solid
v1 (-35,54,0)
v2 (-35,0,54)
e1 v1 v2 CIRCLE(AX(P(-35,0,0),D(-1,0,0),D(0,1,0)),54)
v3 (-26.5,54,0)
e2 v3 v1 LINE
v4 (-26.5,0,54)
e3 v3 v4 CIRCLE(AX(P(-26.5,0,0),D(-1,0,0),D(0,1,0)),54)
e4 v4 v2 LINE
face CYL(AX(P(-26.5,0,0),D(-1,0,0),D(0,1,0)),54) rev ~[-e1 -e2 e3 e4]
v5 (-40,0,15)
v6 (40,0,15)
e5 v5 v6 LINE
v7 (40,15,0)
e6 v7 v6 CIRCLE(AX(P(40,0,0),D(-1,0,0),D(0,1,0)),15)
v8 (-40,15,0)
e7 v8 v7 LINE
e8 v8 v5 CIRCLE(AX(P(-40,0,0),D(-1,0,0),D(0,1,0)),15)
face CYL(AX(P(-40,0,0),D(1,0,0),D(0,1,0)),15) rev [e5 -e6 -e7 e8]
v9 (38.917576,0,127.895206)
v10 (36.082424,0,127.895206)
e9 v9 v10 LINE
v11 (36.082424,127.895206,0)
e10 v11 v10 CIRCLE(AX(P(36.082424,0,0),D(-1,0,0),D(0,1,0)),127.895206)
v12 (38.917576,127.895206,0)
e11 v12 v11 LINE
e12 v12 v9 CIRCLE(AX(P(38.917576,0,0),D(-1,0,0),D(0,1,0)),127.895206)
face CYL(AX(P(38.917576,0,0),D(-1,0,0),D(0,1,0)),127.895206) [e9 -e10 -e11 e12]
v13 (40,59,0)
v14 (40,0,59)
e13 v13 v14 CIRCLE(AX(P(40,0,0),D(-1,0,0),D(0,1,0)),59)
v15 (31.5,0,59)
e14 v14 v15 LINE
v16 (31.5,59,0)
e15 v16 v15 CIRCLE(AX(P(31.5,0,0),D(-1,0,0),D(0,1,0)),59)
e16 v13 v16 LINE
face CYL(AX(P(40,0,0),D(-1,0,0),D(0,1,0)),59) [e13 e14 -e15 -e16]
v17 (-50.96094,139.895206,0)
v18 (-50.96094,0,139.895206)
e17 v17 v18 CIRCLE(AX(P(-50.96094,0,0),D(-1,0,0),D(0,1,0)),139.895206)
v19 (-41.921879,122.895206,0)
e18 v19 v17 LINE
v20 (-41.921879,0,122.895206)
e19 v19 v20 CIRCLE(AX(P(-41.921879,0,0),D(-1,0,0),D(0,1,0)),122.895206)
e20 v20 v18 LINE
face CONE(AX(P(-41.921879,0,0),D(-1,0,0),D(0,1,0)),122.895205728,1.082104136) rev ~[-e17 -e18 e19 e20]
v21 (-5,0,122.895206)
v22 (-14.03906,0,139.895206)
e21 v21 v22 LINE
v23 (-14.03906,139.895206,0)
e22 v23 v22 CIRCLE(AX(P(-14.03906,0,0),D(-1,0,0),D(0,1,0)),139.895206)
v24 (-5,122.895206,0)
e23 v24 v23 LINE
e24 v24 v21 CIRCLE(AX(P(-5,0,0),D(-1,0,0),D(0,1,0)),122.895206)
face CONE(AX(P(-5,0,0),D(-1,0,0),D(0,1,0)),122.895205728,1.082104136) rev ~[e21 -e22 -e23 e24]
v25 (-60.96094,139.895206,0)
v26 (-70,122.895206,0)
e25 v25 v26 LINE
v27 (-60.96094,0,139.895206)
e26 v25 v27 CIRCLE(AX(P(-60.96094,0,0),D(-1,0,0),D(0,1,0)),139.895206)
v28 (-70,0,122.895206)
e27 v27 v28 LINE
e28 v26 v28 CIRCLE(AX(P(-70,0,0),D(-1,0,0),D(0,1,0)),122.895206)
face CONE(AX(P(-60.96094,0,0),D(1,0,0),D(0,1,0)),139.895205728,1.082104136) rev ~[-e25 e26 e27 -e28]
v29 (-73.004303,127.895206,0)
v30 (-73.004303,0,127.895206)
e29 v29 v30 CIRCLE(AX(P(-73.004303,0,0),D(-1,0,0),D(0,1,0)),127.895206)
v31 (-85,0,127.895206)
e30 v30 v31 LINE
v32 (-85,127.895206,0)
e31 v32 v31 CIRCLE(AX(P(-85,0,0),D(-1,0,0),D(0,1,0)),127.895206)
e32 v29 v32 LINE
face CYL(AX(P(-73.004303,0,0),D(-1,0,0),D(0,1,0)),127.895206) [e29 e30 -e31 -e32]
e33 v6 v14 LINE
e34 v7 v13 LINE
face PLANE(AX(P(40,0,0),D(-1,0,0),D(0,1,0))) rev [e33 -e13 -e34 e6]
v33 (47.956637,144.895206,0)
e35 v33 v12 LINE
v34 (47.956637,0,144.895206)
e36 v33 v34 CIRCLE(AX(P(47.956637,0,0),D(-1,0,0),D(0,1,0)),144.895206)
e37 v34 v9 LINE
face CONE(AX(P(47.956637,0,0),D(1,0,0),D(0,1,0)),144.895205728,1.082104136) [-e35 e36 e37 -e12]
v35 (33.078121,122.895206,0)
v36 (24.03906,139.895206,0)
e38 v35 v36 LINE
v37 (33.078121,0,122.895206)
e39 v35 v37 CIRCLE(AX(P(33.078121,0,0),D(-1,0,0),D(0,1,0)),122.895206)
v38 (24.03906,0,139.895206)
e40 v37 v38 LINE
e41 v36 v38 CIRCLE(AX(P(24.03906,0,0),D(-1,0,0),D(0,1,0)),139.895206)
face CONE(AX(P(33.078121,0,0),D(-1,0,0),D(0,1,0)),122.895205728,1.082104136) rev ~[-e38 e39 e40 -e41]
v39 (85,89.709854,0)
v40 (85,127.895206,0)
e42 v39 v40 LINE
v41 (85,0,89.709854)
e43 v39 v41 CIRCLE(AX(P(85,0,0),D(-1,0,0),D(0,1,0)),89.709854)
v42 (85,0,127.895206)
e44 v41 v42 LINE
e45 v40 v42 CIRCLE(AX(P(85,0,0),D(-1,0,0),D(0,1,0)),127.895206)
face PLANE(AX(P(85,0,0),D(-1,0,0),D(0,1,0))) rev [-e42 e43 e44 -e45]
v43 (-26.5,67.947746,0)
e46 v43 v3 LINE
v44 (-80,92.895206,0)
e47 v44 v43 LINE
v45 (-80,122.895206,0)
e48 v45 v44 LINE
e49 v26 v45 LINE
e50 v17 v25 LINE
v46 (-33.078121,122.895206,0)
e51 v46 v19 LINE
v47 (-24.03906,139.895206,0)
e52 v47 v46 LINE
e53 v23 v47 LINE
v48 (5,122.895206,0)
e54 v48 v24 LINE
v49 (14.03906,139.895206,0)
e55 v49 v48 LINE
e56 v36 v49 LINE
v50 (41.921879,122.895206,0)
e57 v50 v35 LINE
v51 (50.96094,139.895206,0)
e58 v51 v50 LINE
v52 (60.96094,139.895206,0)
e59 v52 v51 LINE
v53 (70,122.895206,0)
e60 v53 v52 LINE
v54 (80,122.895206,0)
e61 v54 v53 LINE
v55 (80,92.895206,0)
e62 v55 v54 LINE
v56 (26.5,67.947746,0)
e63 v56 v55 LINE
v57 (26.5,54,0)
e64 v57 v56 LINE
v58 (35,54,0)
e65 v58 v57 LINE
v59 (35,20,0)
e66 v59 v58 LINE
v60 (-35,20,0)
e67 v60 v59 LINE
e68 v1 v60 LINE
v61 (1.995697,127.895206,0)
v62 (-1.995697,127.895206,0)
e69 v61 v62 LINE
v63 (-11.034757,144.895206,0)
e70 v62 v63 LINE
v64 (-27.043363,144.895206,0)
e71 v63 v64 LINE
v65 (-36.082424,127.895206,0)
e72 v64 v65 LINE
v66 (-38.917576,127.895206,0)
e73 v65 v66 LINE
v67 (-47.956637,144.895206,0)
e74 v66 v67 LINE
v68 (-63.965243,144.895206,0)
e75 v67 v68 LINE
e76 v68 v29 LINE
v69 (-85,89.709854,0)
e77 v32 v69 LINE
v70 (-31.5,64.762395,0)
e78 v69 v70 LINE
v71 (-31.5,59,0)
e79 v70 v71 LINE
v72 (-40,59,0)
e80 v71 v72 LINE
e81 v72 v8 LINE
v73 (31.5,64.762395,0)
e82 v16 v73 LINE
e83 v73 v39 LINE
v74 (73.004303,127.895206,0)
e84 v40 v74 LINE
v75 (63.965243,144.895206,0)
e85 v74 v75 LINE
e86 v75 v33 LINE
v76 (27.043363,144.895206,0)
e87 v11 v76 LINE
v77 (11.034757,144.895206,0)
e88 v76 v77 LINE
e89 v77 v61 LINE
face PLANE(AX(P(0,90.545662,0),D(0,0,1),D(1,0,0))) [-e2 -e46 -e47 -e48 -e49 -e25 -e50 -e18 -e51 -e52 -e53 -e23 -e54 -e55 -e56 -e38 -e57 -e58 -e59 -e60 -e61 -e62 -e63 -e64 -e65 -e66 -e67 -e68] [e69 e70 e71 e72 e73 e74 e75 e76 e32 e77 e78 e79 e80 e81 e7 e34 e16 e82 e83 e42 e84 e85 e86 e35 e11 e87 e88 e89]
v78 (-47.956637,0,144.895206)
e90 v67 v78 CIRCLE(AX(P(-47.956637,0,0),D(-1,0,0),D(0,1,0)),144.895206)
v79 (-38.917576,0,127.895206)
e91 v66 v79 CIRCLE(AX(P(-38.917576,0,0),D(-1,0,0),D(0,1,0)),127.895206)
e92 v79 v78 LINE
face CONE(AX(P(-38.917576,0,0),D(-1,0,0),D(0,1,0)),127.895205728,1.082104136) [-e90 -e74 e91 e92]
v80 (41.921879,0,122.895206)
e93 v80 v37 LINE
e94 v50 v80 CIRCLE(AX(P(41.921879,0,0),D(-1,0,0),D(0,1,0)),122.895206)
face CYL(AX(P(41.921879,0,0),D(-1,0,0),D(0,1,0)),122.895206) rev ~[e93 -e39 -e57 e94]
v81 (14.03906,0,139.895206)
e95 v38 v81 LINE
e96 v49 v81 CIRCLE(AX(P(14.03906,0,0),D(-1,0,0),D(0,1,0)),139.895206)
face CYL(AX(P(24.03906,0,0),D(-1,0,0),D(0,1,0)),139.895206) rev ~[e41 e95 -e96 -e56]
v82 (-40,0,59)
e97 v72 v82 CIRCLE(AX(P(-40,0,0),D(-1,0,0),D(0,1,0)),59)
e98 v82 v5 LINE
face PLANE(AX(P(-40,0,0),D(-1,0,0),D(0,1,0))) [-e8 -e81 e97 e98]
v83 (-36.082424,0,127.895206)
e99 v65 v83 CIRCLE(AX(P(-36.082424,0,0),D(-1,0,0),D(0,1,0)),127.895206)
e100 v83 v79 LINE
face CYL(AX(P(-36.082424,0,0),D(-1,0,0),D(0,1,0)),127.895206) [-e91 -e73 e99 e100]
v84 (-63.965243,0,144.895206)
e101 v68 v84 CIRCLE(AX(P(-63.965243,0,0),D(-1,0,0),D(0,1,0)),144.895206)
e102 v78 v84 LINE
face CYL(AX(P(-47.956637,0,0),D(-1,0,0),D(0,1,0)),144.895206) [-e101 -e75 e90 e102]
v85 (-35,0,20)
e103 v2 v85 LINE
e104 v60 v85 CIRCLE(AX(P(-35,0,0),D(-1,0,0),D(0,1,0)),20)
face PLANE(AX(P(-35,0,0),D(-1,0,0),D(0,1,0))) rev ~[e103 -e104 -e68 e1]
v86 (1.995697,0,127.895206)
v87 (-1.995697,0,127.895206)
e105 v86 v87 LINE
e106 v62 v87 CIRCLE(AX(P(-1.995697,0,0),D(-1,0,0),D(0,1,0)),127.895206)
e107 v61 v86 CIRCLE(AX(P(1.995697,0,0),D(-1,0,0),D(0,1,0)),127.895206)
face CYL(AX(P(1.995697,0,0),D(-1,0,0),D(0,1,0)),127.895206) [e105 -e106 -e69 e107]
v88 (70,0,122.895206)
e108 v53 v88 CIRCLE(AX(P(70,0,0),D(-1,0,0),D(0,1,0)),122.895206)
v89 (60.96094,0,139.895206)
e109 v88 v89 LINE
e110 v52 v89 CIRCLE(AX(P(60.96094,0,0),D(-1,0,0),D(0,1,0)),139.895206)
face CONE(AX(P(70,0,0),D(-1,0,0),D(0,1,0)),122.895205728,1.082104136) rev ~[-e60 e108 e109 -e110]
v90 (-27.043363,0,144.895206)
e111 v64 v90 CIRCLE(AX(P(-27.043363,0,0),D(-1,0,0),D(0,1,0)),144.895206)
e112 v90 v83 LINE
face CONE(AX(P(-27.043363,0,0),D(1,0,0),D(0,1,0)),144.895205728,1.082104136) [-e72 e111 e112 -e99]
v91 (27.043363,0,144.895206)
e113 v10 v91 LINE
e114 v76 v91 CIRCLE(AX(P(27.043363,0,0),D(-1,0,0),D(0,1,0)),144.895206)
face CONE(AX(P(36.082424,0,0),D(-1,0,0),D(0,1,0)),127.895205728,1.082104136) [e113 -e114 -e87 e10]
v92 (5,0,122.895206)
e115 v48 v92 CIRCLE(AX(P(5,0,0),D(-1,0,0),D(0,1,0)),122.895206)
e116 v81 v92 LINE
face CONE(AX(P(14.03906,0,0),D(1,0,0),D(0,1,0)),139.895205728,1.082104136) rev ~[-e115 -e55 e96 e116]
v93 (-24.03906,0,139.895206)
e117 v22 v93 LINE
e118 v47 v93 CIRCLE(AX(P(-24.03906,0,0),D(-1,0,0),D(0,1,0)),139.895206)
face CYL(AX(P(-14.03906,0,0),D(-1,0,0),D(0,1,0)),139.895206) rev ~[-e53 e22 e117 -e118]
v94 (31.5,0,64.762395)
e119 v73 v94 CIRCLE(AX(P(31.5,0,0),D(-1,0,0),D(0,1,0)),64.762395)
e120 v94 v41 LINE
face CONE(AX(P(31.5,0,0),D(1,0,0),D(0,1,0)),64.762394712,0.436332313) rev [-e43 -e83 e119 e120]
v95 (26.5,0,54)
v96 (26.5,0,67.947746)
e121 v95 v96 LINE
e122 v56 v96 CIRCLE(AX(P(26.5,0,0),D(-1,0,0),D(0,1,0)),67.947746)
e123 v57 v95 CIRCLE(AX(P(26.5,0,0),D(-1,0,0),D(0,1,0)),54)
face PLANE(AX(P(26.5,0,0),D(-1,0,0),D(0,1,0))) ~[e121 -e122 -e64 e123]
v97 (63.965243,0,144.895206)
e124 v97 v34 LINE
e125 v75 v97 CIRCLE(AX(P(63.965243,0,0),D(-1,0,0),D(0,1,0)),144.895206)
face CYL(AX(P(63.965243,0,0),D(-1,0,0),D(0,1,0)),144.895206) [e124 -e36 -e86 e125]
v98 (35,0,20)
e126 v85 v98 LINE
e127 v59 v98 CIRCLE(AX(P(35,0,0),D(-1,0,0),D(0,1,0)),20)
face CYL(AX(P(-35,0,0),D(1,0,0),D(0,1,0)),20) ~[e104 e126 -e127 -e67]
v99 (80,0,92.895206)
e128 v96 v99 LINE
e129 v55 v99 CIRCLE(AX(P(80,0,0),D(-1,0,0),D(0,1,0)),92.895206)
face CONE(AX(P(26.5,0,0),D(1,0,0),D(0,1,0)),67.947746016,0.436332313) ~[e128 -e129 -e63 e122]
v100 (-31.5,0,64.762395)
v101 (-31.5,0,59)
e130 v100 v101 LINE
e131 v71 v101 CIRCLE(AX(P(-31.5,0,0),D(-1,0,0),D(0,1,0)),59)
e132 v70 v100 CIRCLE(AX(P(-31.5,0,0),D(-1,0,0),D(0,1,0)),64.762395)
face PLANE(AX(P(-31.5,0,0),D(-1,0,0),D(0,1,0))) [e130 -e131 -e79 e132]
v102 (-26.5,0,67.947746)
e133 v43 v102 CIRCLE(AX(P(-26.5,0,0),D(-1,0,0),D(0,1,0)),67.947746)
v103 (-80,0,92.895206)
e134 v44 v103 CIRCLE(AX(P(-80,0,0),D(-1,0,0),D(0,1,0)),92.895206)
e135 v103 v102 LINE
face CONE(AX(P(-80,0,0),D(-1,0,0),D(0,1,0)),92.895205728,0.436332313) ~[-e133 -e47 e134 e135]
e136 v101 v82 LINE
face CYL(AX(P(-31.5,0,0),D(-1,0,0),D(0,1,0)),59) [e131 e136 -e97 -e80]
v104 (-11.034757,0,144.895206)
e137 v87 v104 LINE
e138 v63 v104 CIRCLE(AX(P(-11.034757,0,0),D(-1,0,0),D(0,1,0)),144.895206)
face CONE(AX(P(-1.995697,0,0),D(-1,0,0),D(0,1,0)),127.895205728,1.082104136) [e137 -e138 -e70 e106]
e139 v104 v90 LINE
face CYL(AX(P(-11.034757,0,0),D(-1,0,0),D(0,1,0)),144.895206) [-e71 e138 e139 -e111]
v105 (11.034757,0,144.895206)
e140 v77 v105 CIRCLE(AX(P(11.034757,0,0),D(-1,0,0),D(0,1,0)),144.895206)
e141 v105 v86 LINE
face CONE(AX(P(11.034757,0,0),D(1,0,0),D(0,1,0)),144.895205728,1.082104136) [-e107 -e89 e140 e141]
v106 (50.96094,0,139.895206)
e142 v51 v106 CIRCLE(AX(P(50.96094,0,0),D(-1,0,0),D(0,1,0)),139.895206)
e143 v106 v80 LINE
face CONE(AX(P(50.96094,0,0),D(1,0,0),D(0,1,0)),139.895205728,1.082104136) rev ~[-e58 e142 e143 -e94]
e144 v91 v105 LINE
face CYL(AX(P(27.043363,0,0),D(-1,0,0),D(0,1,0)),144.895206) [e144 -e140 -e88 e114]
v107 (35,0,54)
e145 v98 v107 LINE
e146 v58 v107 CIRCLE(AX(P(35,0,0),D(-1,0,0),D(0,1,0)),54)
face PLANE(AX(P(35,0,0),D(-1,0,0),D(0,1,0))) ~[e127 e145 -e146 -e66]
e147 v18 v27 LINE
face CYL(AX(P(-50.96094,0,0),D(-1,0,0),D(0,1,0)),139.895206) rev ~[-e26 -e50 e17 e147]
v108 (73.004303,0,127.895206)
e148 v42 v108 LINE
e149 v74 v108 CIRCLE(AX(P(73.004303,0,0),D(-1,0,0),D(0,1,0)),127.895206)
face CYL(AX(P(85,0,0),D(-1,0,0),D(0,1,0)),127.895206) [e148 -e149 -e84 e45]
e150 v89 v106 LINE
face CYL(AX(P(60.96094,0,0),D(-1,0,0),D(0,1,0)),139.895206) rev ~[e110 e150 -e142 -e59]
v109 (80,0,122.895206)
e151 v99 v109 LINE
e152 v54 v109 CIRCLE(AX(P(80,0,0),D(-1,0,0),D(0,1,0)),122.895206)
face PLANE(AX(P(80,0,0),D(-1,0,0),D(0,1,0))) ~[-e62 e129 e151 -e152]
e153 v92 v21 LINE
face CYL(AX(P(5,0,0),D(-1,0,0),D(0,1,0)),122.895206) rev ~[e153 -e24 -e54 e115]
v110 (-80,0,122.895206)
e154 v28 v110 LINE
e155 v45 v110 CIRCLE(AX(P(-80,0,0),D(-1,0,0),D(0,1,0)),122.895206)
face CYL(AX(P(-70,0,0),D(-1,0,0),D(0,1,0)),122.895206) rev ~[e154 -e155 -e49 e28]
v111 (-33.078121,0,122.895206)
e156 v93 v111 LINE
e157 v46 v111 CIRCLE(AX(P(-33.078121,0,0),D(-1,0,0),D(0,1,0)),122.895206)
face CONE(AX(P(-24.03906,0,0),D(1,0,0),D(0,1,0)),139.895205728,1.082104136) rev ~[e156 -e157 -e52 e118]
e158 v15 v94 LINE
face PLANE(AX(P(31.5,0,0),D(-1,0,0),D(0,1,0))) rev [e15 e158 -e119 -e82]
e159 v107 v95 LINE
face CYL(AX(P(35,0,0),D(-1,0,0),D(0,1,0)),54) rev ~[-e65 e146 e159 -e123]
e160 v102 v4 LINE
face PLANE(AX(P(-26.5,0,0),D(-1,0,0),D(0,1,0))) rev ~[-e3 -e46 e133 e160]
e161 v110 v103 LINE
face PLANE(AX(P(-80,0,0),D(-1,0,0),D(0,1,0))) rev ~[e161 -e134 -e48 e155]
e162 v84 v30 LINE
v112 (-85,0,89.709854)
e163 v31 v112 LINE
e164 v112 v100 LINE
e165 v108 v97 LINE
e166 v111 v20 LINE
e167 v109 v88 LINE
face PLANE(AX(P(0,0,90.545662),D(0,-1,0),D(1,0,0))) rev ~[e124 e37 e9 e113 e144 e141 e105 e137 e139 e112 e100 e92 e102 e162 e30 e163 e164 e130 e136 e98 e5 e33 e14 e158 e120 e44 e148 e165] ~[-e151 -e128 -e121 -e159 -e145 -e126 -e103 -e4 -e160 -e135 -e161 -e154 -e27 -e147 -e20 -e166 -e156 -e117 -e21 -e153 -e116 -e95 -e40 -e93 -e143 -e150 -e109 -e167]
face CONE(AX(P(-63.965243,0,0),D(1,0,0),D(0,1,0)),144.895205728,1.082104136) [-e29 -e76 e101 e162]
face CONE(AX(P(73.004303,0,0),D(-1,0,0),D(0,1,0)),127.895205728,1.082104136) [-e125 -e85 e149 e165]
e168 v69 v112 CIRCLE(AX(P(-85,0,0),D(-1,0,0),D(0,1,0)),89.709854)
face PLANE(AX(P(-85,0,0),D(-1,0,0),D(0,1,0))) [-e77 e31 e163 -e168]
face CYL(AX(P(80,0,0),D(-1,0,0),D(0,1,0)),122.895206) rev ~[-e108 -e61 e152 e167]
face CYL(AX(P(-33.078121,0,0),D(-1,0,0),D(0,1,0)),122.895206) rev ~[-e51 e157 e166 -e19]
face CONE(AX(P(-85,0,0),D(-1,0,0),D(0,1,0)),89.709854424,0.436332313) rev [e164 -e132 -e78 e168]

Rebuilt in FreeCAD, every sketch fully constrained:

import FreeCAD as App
import Part
import Sketcher

V = App.Vector
Q = App.Units.Quantity


def add_polygon(sketch, points):
    """Adds a closed chain of lines whose ends are joined by coincident constraints."""
    first, n = sketch.GeometryCount, len(points)
    for a, b in zip(points, points[1:] + points[:1]):
        sketch.addGeometry(Part.LineSegment(App.Vector(*a, 0), App.Vector(*b, 0)), False)
    for i in range(n):
        sketch.addConstraint(Sketcher.Constraint("Coincident", first + i, 2, first + (i + 1) % n, 1))

doc = App.newDocument("Part")
body = doc.addObject("PartDesign::Body", "Body")

# Sketch on XY plane
sketch1 = body.newObject("Sketcher::SketchObject", "Sketch")
sketch1.AttachmentSupport = (doc.getObject("XY_Plane"), [""])
sketch1.MapMode = "FlatFace"
add_polygon(sketch1, [(-2, 127.9), (-11, 144.9), (-27, 144.9), (-36.1, 127.9), (-38.9, 127.9), (-48, 144.9), (-64, 144.9), (-73, 127.9), (-85, 127.9), (-85, 89.7), (-31.5, 64.8), (-31.5, 59), (-40, 59), (-40, 15), (40, 15), (40, 59), (31.5, 59), (31.5, 64.8), (85, 89.7), (85, 127.9), (73, 127.9), (64, 144.9), (48, 144.9), (38.9, 127.9), (36.1, 127.9), (27, 144.9), (11, 144.9), (2, 127.9)])  # lines 0-27
add_polygon(sketch1, [(-14, 139.9), (-5, 122.9), (5, 122.9), (14, 139.9), (24, 139.9), (33.1, 122.9), (41.9, 122.9), (51, 139.9), (61, 139.9), (70, 122.9), (80, 122.9), (80, 92.9), (26.5, 67.9), (26.5, 54), (35, 54), (35, 20), (-35, 20), (-35, 54), (-26.5, 54), (-26.5, 67.9), (-80, 92.9), (-80, 122.9), (-70, 122.9), (-61, 139.9), (-51, 139.9), (-41.9, 122.9), (-33.1, 122.9), (-24, 139.9)])  # lines 28-55
sketch1.addConstraint(Sketcher.Constraint("Horizontal", 1))
sketch1.addConstraint(Sketcher.Constraint("Horizontal", 3))
sketch1.addConstraint(Sketcher.Constraint("Horizontal", 5))
sketch1.addConstraint(Sketcher.Constraint("Horizontal", 7))
sketch1.addConstraint(Sketcher.Constraint("Vertical", 8))
sketch1.addConstraint(Sketcher.Constraint("Vertical", 10))
sketch1.addConstraint(Sketcher.Constraint("Horizontal", 11))
sketch1.addConstraint(Sketcher.Constraint("Vertical", 12))
sketch1.addConstraint(Sketcher.Constraint("Horizontal", 13))
sketch1.addConstraint(Sketcher.Constraint("Vertical", 14))
sketch1.addConstraint(Sketcher.Constraint("Horizontal", 15))
sketch1.addConstraint(Sketcher.Constraint("Vertical", 16))
sketch1.addConstraint(Sketcher.Constraint("Vertical", 18))
sketch1.addConstraint(Sketcher.Constraint("Horizontal", 19))
sketch1.addConstraint(Sketcher.Constraint("Horizontal", 21))
sketch1.addConstraint(Sketcher.Constraint("Horizontal", 23))
sketch1.addConstraint(Sketcher.Constraint("Horizontal", 25))
sketch1.addConstraint(Sketcher.Constraint("Horizontal", 27))
sketch1.addConstraint(Sketcher.Constraint("Horizontal", 29))
sketch1.addConstraint(Sketcher.Constraint("Horizontal", 31))
sketch1.addConstraint(Sketcher.Constraint("Horizontal", 33))
sketch1.addConstraint(Sketcher.Constraint("Horizontal", 35))
sketch1.addConstraint(Sketcher.Constraint("Horizontal", 37))
sketch1.addConstraint(Sketcher.Constraint("Vertical", 38))
sketch1.addConstraint(Sketcher.Constraint("Vertical", 40))
sketch1.addConstraint(Sketcher.Constraint("Horizontal", 41))
sketch1.addConstraint(Sketcher.Constraint("Vertical", 42))
sketch1.addConstraint(Sketcher.Constraint("Horizontal", 43))
sketch1.addConstraint(Sketcher.Constraint("Vertical", 44))
sketch1.addConstraint(Sketcher.Constraint("Horizontal", 45))
sketch1.addConstraint(Sketcher.Constraint("Vertical", 46))
sketch1.addConstraint(Sketcher.Constraint("Vertical", 48))
sketch1.addConstraint(Sketcher.Constraint("Horizontal", 49))
sketch1.addConstraint(Sketcher.Constraint("Horizontal", 51))
sketch1.addConstraint(Sketcher.Constraint("Horizontal", 53))
sketch1.addConstraint(Sketcher.Constraint("Horizontal", 55))
sketch1.addConstraint(Sketcher.Constraint("Symmetric", 11, 2, 14, 2, -2))
sketch1.addConstraint(Sketcher.Constraint("Symmetric", 9, 2, 16, 2, -2))
sketch1.addConstraint(Sketcher.Constraint("Symmetric", 8, 2, 17, 2, -2))
sketch1.addConstraint(Sketcher.Constraint("Symmetric", 6, 2, 19, 2, -2))
sketch1.addConstraint(Sketcher.Constraint("Symmetric", 5, 2, 20, 2, -2))
sketch1.addConstraint(Sketcher.Constraint("Symmetric", 3, 2, 22, 2, -2))
sketch1.addConstraint(Sketcher.Constraint("Symmetric", 1, 2, 24, 2, -2))
sketch1.addConstraint(Sketcher.Constraint("Symmetric", 41, 2, 44, 2, -2))
sketch1.addConstraint(Sketcher.Constraint("Symmetric", 39, 2, 46, 2, -2))
sketch1.addConstraint(Sketcher.Constraint("Symmetric", 38, 2, 47, 2, -2))
sketch1.addConstraint(Sketcher.Constraint("Symmetric", 36, 2, 49, 2, -2))
sketch1.addConstraint(Sketcher.Constraint("Symmetric", 35, 2, 50, 2, -2))
sketch1.addConstraint(Sketcher.Constraint("Symmetric", 33, 2, 52, 2, -2))
sketch1.addConstraint(Sketcher.Constraint("Symmetric", 31, 2, 54, 2, -2))
sketch1.addConstraint(Sketcher.Constraint("Parallel", 0, 4))
sketch1.addConstraint(Sketcher.Constraint("Parallel", 2, 6))
sketch1.addConstraint(Sketcher.Constraint("Parallel", 4, 20))
sketch1.addConstraint(Sketcher.Constraint("Parallel", 6, 22))
sketch1.addConstraint(Sketcher.Constraint("Parallel", 20, 24))
sketch1.addConstraint(Sketcher.Constraint("Parallel", 22, 26))
sketch1.addConstraint(Sketcher.Constraint("Parallel", 24, 28))
sketch1.addConstraint(Sketcher.Constraint("Parallel", 26, 30))
sketch1.addConstraint(Sketcher.Constraint("Parallel", 28, 32))
sketch1.addConstraint(Sketcher.Constraint("Parallel", 30, 34))
sketch1.addConstraint(Sketcher.Constraint("Parallel", 32, 36))
sketch1.addConstraint(Sketcher.Constraint("Parallel", 17, 39))
sketch1.addConstraint(Sketcher.Constraint("Parallel", 36, 52))
sketch1.addConstraint(Sketcher.Constraint("Parallel", 50, 54))
sketch1.addConstraint(Sketcher.Constraint("Horizontal", 1, 2, 4, 2))
sketch1.addConstraint(Sketcher.Constraint("Horizontal", 3, 2, 6, 2))
sketch1.addConstraint(Sketcher.Constraint("Horizontal", 23, 2, 26, 2))
sketch1.addConstraint(Sketcher.Constraint("Horizontal", 29, 2, 32, 2))
sketch1.addConstraint(Sketcher.Constraint("Horizontal", 31, 2, 34, 2))
sketch1.addConstraint(Sketcher.Constraint("Horizontal", 33, 2, 36, 2))
sketch1.addConstraint(Sketcher.Constraint("Equal", 1, 5))
sketch1.addConstraint(Sketcher.Constraint("Equal", 21, 25))
sketch1.addConstraint(Sketcher.Constraint("Equal", 29, 31))
sketch1.addConstraint(Sketcher.Constraint("Equal", 31, 35))
sketch1.addConstraint(Sketcher.Constraint("Equal", 35, 37))
sketch1.addConstraint(Sketcher.Constraint("Equal", 15, 41))
sketch1.addConstraint(Sketcher.Constraint("Equal", 51, 55))
sketch1.addConstraint(Sketcher.Constraint("Equal", 26, 28))
sketch1.addConstraint(Sketcher.Constraint("Equal", 17, 39))
sketch1.addConstraint(Sketcher.Constraint("DistanceX", 13, 1, 13, 2, Q("80 mm")))
sketch1.addConstraint(Sketcher.Constraint("DistanceX", 29, 1, 29, 2, Q("10 mm")))
sketch1.addConstraint(Sketcher.Constraint("DistanceX", 43, 2, 43, 1, Q("70 mm")))
sketch1.addConstraint(Sketcher.Constraint("DistanceY", 12, 2, 12, 1, Q("44 mm")))
sketch1.addConstraint(Sketcher.Constraint("DistanceY", 38, 2, 38, 1, Q("30 mm")))
sketch1.addConstraint(Sketcher.Constraint("DistanceY", 42, 2, 42, 1, Q("34 mm")))
sketch1.addConstraint(Sketcher.Constraint("Angle", 0, Q("118 deg")))
sketch1.addConstraint(Sketcher.Constraint("Angle", 9, Q("-25 deg")))
sketch1.addConstraint(Sketcher.Constraint("DistanceX", 11, 2, 11, 1, Q("8.5 mm")))
sketch1.addConstraint(Sketcher.Constraint("DistanceX", 7, 2, -1, 1, Q("85 mm")))
sketch1.addConstraint(Sketcher.Constraint("DistanceY", -1, 1, 10, 2, Q("59 mm")))
sketch1.addConstraint(Sketcher.Constraint("DistanceY", -1, 1, 40, 2, Q("54 mm")))
sketch1.addConstraint(Sketcher.Constraint("DistanceY", 2, 2, 1, 2, Q("17 mm")))
sketch1.addConstraint(Sketcher.Constraint("DistanceX", 0, 2, 20, 2, Q("75 mm")))
sketch1.addConstraint(Sketcher.Constraint("DistanceY", 28, 2, 27, 2, Q("5 mm")))
sketch1.addConstraint(Sketcher.Constraint("DistanceY", 8, 2, 8, 1, Q("38.185351 mm")))
sketch1.addConstraint(Sketcher.Constraint("DistanceX", 1, 2, 1, 1, Q("16.008606 mm")))
sketch1.addConstraint(Sketcher.Constraint("DistanceX", 3, 2, 3, 1, Q("2.835152 mm")))
sketch1.addConstraint(Sketcher.Constraint("DistanceY", 10, 2, 10, 1, Q("5.762395 mm")))
revolution = body.newObject("PartDesign::Revolution", "Revolution")
revolution.Profile = sketch1
revolution.ReferenceAxis = (sketch1, ["H_Axis"])
revolution.Angle = 270
revolution.Reversed = True

doc.recompute()
